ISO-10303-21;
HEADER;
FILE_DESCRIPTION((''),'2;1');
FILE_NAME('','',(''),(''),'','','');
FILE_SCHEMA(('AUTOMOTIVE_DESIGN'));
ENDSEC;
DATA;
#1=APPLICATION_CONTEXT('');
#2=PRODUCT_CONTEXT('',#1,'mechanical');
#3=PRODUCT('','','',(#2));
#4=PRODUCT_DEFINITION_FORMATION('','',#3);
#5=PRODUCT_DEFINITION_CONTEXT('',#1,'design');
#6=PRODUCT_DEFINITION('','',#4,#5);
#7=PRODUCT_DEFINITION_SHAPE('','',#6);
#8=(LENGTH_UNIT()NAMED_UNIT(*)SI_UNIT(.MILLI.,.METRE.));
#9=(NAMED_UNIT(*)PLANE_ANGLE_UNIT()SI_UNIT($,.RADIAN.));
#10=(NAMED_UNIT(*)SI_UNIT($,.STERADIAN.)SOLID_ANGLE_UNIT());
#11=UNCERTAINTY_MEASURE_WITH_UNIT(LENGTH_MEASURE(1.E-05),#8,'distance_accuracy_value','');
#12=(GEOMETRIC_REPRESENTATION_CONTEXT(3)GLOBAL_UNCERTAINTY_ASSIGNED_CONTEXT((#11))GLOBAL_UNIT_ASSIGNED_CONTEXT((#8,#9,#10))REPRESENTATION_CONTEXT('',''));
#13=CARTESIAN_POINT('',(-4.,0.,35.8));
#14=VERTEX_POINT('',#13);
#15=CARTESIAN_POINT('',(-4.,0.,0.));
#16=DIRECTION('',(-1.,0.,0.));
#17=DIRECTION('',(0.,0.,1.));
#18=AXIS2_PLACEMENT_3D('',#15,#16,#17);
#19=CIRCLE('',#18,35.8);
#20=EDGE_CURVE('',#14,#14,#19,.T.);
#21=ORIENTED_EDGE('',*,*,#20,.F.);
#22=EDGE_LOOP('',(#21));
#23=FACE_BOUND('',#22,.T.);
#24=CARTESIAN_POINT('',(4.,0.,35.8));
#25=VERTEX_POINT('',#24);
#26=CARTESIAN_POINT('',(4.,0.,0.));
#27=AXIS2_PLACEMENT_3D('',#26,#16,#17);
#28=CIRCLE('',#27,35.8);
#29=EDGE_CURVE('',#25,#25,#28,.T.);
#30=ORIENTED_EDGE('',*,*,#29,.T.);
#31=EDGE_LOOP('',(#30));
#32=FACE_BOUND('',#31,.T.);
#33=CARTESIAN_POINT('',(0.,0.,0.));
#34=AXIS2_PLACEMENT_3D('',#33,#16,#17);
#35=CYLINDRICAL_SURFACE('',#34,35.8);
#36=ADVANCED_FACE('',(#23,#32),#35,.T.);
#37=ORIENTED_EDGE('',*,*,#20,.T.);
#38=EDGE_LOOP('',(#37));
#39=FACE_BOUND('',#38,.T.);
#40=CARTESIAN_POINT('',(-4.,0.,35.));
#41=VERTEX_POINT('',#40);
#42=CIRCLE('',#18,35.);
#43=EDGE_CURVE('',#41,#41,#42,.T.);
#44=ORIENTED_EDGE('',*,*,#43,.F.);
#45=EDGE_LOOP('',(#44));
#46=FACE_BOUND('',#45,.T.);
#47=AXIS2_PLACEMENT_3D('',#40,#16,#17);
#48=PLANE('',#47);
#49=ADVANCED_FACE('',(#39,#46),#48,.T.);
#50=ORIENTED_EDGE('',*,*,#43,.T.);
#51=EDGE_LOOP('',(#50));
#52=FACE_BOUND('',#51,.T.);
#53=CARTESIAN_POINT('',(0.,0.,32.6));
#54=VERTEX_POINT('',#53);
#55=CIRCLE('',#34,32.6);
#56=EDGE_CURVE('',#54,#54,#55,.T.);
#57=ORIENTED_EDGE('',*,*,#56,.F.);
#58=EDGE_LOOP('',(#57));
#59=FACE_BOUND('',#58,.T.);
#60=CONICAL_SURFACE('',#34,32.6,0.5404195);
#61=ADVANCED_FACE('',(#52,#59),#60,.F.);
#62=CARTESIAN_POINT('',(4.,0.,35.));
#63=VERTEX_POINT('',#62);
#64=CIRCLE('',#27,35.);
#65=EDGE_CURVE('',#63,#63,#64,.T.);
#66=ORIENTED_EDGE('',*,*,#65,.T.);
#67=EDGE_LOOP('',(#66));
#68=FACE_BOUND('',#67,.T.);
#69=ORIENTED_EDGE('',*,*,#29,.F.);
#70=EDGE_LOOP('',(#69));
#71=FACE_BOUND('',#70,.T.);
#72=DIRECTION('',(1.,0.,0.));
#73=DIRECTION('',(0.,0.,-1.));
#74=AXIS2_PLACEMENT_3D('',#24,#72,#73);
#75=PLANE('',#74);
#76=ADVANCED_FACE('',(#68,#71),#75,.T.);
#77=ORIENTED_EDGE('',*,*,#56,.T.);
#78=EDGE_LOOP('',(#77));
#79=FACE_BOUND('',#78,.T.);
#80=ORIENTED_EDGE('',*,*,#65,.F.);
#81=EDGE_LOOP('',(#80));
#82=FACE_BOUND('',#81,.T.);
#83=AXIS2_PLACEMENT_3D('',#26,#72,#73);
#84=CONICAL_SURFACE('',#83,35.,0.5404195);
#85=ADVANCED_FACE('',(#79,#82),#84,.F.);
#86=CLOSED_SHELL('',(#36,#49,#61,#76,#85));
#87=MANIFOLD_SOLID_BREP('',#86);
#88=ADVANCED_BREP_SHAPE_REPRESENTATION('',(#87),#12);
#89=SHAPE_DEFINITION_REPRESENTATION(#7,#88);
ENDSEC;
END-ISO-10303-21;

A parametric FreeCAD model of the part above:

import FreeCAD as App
import Part
import Sketcher
Q = App.Units.Quantity


def add_polygon(sketch, points):
    """Adds a closed chain of lines whose ends are joined by coincident constraints."""
    first, n = sketch.GeometryCount, len(points)
    for a, b in zip(points, points[1:] + points[:1]):
        sketch.addGeometry(Part.LineSegment(App.Vector(*a, 0), App.Vector(*b, 0)), False)
    for i in range(n):
        sketch.addConstraint(Sketcher.Constraint("Coincident", first + i, 2, first + (i + 1) % n, 1))

doc = App.newDocument("Part")
body = doc.addObject("PartDesign::Body", "Body")

# Sketch on XZ plane
sketch1 = doc.addObject("Sketcher::SketchObject", "Sketch")
body.addObject(sketch1)
sketch1.AttachmentSupport = (doc.XZ_Plane, [""])
sketch1.MapMode = "FlatFace"
add_polygon(sketch1, [(4, 35), (0, 32.6), (-4, 35), (-4, 35.8), (4, 35.8)])  # lines 0-4
sketch1.addConstraint(Sketcher.Constraint("Vertical", 2))
sketch1.addConstraint(Sketcher.Constraint("Horizontal", 3))
sketch1.addConstraint(Sketcher.Constraint("Vertical", 4))
sketch1.addConstraint(Sketcher.Constraint("Symmetric", 1, 2, 4, 2, -2))
sketch1.addConstraint(Sketcher.Constraint("PointOnObject", 0, 2, -2))
sketch1.addConstraint(Sketcher.Constraint("DistanceX", 3, 1, 3, 2, Q("8 mm")))
sketch1.addConstraint(Sketcher.Constraint("DistanceY", 2, 1, 2, 2, Q("0.8 mm")))
sketch1.addConstraint(Sketcher.Constraint("DistanceY", -1, 1, 1, 2, Q("35 mm")))
sketch1.addConstraint(Sketcher.Constraint("DistanceY", -1, 1, 0, 2, Q("32.6 mm")))
revolution = doc.addObject("PartDesign::Revolution", "Revolution")
body.addObject(revolution)
revolution.Profile = sketch1
revolution.ReferenceAxis = (sketch1, ["H_Axis"])
revolution.Angle = 360

doc.recompute()
